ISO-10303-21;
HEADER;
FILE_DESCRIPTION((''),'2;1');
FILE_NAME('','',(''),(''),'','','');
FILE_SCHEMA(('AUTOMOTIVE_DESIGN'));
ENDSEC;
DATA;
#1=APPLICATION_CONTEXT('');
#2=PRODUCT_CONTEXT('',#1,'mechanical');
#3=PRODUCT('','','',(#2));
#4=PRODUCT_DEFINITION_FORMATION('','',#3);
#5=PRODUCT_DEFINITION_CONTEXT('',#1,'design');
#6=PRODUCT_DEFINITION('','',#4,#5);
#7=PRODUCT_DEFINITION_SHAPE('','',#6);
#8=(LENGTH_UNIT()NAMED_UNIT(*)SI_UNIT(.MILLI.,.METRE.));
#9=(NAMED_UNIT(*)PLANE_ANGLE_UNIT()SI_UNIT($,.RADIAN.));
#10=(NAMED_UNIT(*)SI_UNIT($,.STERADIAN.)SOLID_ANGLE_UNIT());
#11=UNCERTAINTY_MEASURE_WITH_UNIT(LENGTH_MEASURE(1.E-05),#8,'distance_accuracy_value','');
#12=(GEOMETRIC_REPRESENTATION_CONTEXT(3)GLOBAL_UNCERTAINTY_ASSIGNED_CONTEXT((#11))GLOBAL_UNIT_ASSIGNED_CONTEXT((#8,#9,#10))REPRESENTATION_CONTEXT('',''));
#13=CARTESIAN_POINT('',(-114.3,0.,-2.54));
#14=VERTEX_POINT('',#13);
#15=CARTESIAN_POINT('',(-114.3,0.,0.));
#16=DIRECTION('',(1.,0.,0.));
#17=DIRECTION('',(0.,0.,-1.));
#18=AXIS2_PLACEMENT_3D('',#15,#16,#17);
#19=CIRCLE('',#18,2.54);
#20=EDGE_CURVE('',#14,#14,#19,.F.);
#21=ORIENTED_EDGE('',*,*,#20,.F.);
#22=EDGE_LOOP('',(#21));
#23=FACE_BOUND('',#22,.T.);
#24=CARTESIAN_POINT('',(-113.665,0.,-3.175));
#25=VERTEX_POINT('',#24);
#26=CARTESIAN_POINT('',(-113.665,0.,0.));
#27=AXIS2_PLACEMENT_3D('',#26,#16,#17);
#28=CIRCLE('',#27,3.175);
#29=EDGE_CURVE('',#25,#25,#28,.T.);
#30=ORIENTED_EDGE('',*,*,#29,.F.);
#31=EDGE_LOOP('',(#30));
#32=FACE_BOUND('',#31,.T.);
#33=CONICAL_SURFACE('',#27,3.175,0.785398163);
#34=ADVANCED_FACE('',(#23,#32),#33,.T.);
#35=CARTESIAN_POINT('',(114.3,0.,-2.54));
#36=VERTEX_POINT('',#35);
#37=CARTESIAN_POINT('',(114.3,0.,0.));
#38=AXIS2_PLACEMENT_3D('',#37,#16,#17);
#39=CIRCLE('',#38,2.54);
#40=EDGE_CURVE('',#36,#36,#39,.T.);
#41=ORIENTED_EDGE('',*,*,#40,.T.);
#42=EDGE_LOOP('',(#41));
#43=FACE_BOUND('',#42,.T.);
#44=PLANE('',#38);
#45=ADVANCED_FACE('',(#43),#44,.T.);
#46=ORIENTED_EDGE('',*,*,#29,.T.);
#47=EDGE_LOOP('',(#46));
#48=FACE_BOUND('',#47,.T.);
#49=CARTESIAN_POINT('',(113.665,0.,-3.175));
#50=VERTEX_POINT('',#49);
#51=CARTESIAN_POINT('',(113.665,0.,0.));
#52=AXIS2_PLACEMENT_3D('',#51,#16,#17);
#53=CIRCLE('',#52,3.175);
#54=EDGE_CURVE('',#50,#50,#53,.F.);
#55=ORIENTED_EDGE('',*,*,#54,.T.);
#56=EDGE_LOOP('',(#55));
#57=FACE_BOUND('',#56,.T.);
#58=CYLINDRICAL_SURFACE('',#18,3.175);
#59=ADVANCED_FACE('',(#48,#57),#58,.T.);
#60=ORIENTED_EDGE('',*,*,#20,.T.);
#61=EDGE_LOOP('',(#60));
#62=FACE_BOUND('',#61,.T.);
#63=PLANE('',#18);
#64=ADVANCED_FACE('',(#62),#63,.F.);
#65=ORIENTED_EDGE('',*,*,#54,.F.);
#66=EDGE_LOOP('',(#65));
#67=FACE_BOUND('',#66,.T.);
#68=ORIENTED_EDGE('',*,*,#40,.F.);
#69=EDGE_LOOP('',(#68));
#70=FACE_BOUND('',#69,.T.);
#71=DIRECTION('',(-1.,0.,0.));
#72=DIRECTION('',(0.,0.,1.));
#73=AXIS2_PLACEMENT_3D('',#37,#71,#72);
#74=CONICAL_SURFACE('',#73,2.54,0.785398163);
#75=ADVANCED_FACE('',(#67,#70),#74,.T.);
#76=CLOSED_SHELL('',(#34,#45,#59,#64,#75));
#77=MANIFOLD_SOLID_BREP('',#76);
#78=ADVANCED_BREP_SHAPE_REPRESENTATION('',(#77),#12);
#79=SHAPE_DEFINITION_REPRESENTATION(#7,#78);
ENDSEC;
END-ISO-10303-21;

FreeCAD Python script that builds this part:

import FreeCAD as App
import Part
import Sketcher
from FreeCAD import Vector
Q = App.Units.Quantity


def edges_at(feature, points):
    """Names of the edges that pass closest to the given points."""
    edges = feature.Shape.Edges
    near = lambda p: min(range(len(edges)), key=lambda i: edges[i].distToShape(Part.Vertex(*p))[0])
    return sorted({f"Edge{near(p) + 1}" for p in points})

doc = App.newDocument("Part")
params = doc.addObject("Spreadsheet::Sheet", "Params")
for row, (alias, value) in enumerate([
    ("sketch1_diameter", "0.25 in"),
    ("pad1_length", "4.5 in"),
    ("pad1_length2", "4.5 in"),
    ("chamfer_size", "0.025 in"),
], start=1):
    params.set(f"A{row}", alias)
    params.set(f"B{row}", "=" + value)
    params.setAlias(f"B{row}", alias)

body = doc.addObject("PartDesign::Body", "Body")

# Sketch on YZ plane
sketch1 = body.newObject("Sketcher::SketchObject", "Sketch")
sketch1.AttachmentSupport = (doc.getObject("YZ_Plane"), [""])
sketch1.MapMode = "FlatFace"
sketch1.addGeometry(Part.Circle(Vector(0, 0, 0), Vector(0, 0, 1), 3.175), False)
sketch1.addConstraint([
    Sketcher.Constraint("Coincident", 0, 3, -1, 1),
    Sketcher.Constraint("Diameter", 0, Q("0.25 in")),
])
sketch1.setExpression("Constraints[1]", "Params.sketch1_diameter")
pad1 = body.newObject("PartDesign::Pad", "Pad")
pad1.Profile = sketch1
pad1.Type = "TwoLengths"
pad1.setExpression("Length", "Params.pad1_length")
pad1.setExpression("Length2", "Params.pad1_length2")
doc.recompute()

chamfer = body.newObject("PartDesign::Chamfer", "Chamfer")
chamfer.Base = (pad1, edges_at(pad1, [(-114.3, 0, 3.175), (114.3, 0, 3.175)]))
chamfer.setExpression("Size", "Params.chamfer_size")

doc.recompute()
